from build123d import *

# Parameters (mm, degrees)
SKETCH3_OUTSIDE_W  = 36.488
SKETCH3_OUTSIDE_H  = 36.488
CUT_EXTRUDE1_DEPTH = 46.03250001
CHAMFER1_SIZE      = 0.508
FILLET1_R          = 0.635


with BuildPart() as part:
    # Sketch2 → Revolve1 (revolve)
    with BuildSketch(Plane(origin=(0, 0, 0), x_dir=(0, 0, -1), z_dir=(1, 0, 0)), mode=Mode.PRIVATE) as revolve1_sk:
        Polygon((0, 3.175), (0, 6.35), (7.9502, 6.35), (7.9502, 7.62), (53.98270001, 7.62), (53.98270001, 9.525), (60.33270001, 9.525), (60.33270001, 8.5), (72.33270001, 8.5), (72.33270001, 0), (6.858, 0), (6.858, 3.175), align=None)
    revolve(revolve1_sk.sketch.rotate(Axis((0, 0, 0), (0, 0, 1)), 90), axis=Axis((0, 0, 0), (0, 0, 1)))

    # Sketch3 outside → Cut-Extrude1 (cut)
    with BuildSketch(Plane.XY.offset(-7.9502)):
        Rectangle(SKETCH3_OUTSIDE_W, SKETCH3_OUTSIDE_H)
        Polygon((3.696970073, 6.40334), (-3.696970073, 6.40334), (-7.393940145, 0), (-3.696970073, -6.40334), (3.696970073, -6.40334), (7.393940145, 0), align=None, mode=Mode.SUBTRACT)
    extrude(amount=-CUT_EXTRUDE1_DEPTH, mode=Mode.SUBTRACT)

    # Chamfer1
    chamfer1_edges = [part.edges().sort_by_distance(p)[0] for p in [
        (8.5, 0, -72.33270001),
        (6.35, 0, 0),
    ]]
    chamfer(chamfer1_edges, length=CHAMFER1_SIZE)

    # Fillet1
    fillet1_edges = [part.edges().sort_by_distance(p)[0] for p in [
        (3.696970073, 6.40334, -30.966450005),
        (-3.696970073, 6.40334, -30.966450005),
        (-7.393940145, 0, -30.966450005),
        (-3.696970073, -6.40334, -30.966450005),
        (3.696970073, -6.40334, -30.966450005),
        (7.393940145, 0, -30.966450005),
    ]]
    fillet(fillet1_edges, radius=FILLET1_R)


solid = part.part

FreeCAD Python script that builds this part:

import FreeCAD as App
import Part
import Sketcher
from FreeCAD import Vector
Q = App.Units.Quantity


def edges_at(feature, points):
    """Names of the edges that pass closest to the given points."""
    edges = feature.Shape.Edges
    near = lambda p: min(range(len(edges)), key=lambda i: edges[i].distToShape(Part.Vertex(*p))[0])
    return sorted({f"Edge{near(p) + 1}" for p in points})

doc = App.newDocument("Part")
body = doc.addObject("PartDesign::Body", "Body")

sketch1 = doc.addObject("Sketcher::SketchObject", "Sketch")
body.addObject(sketch1)
sketch1.AttachmentSupport = (doc.YZ_Plane, [""])
sketch1.MapMode = "FlatFace"
sketch1.addGeometry(Part.LineSegment(Vector(6.35, 0, 0), Vector(3.175, 0, 0)), False)
sketch1.addGeometry(Part.LineSegment(Vector(3.175, 0, 0), Vector(3.175, -6.858, 0)), False)
sketch1.addGeometry(Part.LineSegment(Vector(3.175, -6.858, 0), Vector(0, -6.858, 0)), False)
sketch1.addGeometry(Part.LineSegment(Vector(0, -6.858, 0), Vector(0, -72.3327, 0)), False)
sketch1.addGeometry(Part.LineSegment(Vector(0, -72.3327, 0), Vector(8.5, -72.3327, 0)), False)
sketch1.addGeometry(Part.LineSegment(Vector(8.5, -72.3327, 0), Vector(8.5, -60.3327, 0)), False)
sketch1.addGeometry(Part.LineSegment(Vector(8.5, -60.3327, 0), Vector(9.525, -60.3327, 0)), False)
sketch1.addGeometry(Part.LineSegment(Vector(9.525, -60.3327, 0), Vector(9.525, -53.9827, 0)), False)
sketch1.addGeometry(Part.LineSegment(Vector(9.525, -53.9827, 0), Vector(7.62, -53.9827, 0)), False)
sketch1.addGeometry(Part.LineSegment(Vector(7.62, -53.9827, 0), Vector(7.62, -7.9502, 0)), False)
sketch1.addGeometry(Part.LineSegment(Vector(7.62, -7.9502, 0), Vector(6.35, -7.9502, 0)), False)
sketch1.addGeometry(Part.LineSegment(Vector(6.35, -7.9502, 0), Vector(6.35, 0, 0)), False)
sketch1.addConstraint(Sketcher.Constraint("Coincident", 0, 2, 1, 1))
sketch1.addConstraint(Sketcher.Constraint("Coincident", 1, 2, 2, 1))
sketch1.addConstraint(Sketcher.Constraint("Coincident", 2, 2, 3, 1))
sketch1.addConstraint(Sketcher.Constraint("Coincident", 3, 2, 4, 1))
sketch1.addConstraint(Sketcher.Constraint("Coincident", 4, 2, 5, 1))
sketch1.addConstraint(Sketcher.Constraint("Coincident", 5, 2, 6, 1))
sketch1.addConstraint(Sketcher.Constraint("Coincident", 6, 2, 7, 1))
sketch1.addConstraint(Sketcher.Constraint("Coincident", 7, 2, 8, 1))
sketch1.addConstraint(Sketcher.Constraint("Coincident", 8, 2, 9, 1))
sketch1.addConstraint(Sketcher.Constraint("Coincident", 9, 2, 10, 1))
sketch1.addConstraint(Sketcher.Constraint("Coincident", 10, 2, 11, 1))
sketch1.addConstraint(Sketcher.Constraint("Coincident", 11, 2, 0, 1))
sketch1.addConstraint(Sketcher.Constraint("Horizontal", 0))
sketch1.addConstraint(Sketcher.Constraint("Vertical", 1))
sketch1.addConstraint(Sketcher.Constraint("Horizontal", 2))
sketch1.addConstraint(Sketcher.Constraint("Vertical", 3))
sketch1.addConstraint(Sketcher.Constraint("Horizontal", 4))
sketch1.addConstraint(Sketcher.Constraint("Vertical", 5))
sketch1.addConstraint(Sketcher.Constraint("Horizontal", 6))
sketch1.addConstraint(Sketcher.Constraint("Vertical", 7))
sketch1.addConstraint(Sketcher.Constraint("Horizontal", 8))
sketch1.addConstraint(Sketcher.Constraint("Vertical", 9))
sketch1.addConstraint(Sketcher.Constraint("Horizontal", 10))
sketch1.addConstraint(Sketcher.Constraint("Vertical", 11))
sketch1.addConstraint(Sketcher.Constraint("PointOnObject", 0, 2, -1))
sketch1.addConstraint(Sketcher.Constraint("PointOnObject", 2, 2, -2))
sketch1.addConstraint(Sketcher.Constraint("Equal", 0, 2))
sketch1.addConstraint(Sketcher.Constraint("DistanceX", 10, 2, 10, 1, Q("0.05 in")))
sketch1.addConstraint(Sketcher.Constraint("DistanceY", 1, 2, 1, 1, Q("0.27 in")))
sketch1.addConstraint(Sketcher.Constraint("DistanceY", 7, 1, 7, 2, Q("0.25 in")))
sketch1.addConstraint(Sketcher.Constraint("DistanceX", -1, 1, 8, 2, Q("0.3 in")))
sketch1.addConstraint(Sketcher.Constraint("DistanceX", 8, 2, 8, 1, Q("0.075 in")))
sketch1.addConstraint(Sketcher.Constraint("DistanceY", 11, 1, 11, 2, Q("0.313 in")))
sketch1.addConstraint(Sketcher.Constraint("DistanceX", 4, 1, 4, 2, 8.5))
sketch1.addConstraint(Sketcher.Constraint("DistanceY", 3, 2, 3, 1, 65.4747))
sketch1.addConstraint(Sketcher.Constraint("DistanceY", 5, 1, 5, 2, 12.0))
revolution = doc.addObject("PartDesign::Revolution", "Revolution")
body.addObject(revolution)
revolution.Profile = sketch1
revolution.ReferenceAxis = (sketch1, ["V_Axis"])
revolution.Angle = 360

sketch2 = doc.addObject("Sketcher::SketchObject", "Sketch001")
body.addObject(sketch2)
sketch2.AttachmentSupport = (doc.XY_Plane, [""])
sketch2.MapMode = "FlatFace"
sketch2.AttachmentOffset = App.Placement(Vector(0, 0, -0.313 * 25.4), App.Rotation())
sketch2.addGeometry(Part.LineSegment(Vector(-18.244, 18.244, 0), Vector(-18.244, -18.244, 0)), False)
sketch2.addGeometry(Part.LineSegment(Vector(-18.244, -18.244, 0), Vector(18.244, -18.244, 0)), False)
sketch2.addGeometry(Part.LineSegment(Vector(18.244, -18.244, 0), Vector(18.244, 18.244, 0)), False)
sketch2.addGeometry(Part.LineSegment(Vector(18.244, 18.244, 0), Vector(-18.244, 18.244, 0)), False)
sketch2.addGeometry(Part.LineSegment(Vector(-3.69697, 6.40334, 0), Vector(3.69697, 6.40334, 0)), False)
sketch2.addGeometry(Part.LineSegment(Vector(3.69697, 6.40334, 0), Vector(7.39394, 0, 0)), False)
sketch2.addGeometry(Part.LineSegment(Vector(7.39394, 0, 0), Vector(3.69697, -6.40334, 0)), False)
sketch2.addGeometry(Part.LineSegment(Vector(3.69697, -6.40334, 0), Vector(-3.69697, -6.40334, 0)), False)
sketch2.addGeometry(Part.LineSegment(Vector(-3.69697, -6.40334, 0), Vector(-7.39394, 0, 0)), False)
sketch2.addGeometry(Part.LineSegment(Vector(-7.39394, 0, 0), Vector(-3.69697, 6.40334, 0)), False)
sketch2.addConstraint(Sketcher.Constraint("Coincident", 0, 2, 1, 1))
sketch2.addConstraint(Sketcher.Constraint("Coincident", 1, 2, 2, 1))
sketch2.addConstraint(Sketcher.Constraint("Coincident", 2, 2, 3, 1))
sketch2.addConstraint(Sketcher.Constraint("Coincident", 3, 2, 0, 1))
sketch2.addConstraint(Sketcher.Constraint("Coincident", 4, 2, 5, 1))
sketch2.addConstraint(Sketcher.Constraint("Coincident", 5, 2, 6, 1))
sketch2.addConstraint(Sketcher.Constraint("Coincident", 6, 2, 7, 1))
sketch2.addConstraint(Sketcher.Constraint("Coincident", 7, 2, 8, 1))
sketch2.addConstraint(Sketcher.Constraint("Coincident", 8, 2, 9, 1))
sketch2.addConstraint(Sketcher.Constraint("Coincident", 9, 2, 4, 1))
sketch2.addConstraint(Sketcher.Constraint("Vertical", 0))
sketch2.addConstraint(Sketcher.Constraint("Horizontal", 1))
sketch2.addConstraint(Sketcher.Constraint("Vertical", 2))
sketch2.addConstraint(Sketcher.Constraint("Horizontal", 3))
sketch2.addConstraint(Sketcher.Constraint("Horizontal", 4))
sketch2.addConstraint(Sketcher.Constraint("Horizontal", 7))
sketch2.addConstraint(Sketcher.Constraint("Symmetric", 0, 2, 2, 2, -1, 1))
sketch2.addConstraint(Sketcher.Constraint("Symmetric", 4, 2, 7, 2, -1, 1))
sketch2.addConstraint(Sketcher.Constraint("Symmetric", 5, 2, 8, 2, -1, 1))
sketch2.addConstraint(Sketcher.Constraint("PointOnObject", 5, 2, -1))
sketch2.addConstraint(Sketcher.Constraint("Parallel", 6, 9))
sketch2.addConstraint(Sketcher.Constraint("Vertical", 4, 2, 6, 2))
sketch2.addConstraint(Sketcher.Constraint("Equal", 3, 0))
sketch2.addConstraint(Sketcher.Constraint("Angle", 5, Q("-60 deg")))
sketch2.addConstraint(Sketcher.Constraint("DistanceX", 4, 1, 4, 2, Q("0.2911 in")))
sketch2.addConstraint(Sketcher.Constraint("Distance", 5, Q("0.2911 in")))
sketch2.addConstraint(Sketcher.Constraint("DistanceX", 1, 1, 1, 2, 36.488))
pocket1 = doc.addObject("PartDesign::Pocket", "Pocket")
body.addObject(pocket1)
pocket1.Profile = sketch2
pocket1.Length = 46.0325
doc.recompute()

chamfer = doc.addObject("PartDesign::Chamfer", "Chamfer")
body.addObject(chamfer)
chamfer.Base = (pocket1, edges_at(pocket1, [(8.5, 0, -72.333), (6.35, 0, 0)]))
chamfer.Size = Q("0.02 in")
doc.recompute()

fillet = doc.addObject("PartDesign::Fillet", "Fillet")
body.addObject(fillet)
fillet.Base = (chamfer, edges_at(chamfer, [
    (3.697, 6.403, -30.966),
    (-3.697, 6.403, -30.966),
    (-7.394, 0, -30.966),
    (-3.697, -6.403, -30.966),
    (3.697, -6.403, -30.966),
    (7.394, 0, -30.966),
]))
fillet.Radius = Q("0.025 in")

doc.recompute()
